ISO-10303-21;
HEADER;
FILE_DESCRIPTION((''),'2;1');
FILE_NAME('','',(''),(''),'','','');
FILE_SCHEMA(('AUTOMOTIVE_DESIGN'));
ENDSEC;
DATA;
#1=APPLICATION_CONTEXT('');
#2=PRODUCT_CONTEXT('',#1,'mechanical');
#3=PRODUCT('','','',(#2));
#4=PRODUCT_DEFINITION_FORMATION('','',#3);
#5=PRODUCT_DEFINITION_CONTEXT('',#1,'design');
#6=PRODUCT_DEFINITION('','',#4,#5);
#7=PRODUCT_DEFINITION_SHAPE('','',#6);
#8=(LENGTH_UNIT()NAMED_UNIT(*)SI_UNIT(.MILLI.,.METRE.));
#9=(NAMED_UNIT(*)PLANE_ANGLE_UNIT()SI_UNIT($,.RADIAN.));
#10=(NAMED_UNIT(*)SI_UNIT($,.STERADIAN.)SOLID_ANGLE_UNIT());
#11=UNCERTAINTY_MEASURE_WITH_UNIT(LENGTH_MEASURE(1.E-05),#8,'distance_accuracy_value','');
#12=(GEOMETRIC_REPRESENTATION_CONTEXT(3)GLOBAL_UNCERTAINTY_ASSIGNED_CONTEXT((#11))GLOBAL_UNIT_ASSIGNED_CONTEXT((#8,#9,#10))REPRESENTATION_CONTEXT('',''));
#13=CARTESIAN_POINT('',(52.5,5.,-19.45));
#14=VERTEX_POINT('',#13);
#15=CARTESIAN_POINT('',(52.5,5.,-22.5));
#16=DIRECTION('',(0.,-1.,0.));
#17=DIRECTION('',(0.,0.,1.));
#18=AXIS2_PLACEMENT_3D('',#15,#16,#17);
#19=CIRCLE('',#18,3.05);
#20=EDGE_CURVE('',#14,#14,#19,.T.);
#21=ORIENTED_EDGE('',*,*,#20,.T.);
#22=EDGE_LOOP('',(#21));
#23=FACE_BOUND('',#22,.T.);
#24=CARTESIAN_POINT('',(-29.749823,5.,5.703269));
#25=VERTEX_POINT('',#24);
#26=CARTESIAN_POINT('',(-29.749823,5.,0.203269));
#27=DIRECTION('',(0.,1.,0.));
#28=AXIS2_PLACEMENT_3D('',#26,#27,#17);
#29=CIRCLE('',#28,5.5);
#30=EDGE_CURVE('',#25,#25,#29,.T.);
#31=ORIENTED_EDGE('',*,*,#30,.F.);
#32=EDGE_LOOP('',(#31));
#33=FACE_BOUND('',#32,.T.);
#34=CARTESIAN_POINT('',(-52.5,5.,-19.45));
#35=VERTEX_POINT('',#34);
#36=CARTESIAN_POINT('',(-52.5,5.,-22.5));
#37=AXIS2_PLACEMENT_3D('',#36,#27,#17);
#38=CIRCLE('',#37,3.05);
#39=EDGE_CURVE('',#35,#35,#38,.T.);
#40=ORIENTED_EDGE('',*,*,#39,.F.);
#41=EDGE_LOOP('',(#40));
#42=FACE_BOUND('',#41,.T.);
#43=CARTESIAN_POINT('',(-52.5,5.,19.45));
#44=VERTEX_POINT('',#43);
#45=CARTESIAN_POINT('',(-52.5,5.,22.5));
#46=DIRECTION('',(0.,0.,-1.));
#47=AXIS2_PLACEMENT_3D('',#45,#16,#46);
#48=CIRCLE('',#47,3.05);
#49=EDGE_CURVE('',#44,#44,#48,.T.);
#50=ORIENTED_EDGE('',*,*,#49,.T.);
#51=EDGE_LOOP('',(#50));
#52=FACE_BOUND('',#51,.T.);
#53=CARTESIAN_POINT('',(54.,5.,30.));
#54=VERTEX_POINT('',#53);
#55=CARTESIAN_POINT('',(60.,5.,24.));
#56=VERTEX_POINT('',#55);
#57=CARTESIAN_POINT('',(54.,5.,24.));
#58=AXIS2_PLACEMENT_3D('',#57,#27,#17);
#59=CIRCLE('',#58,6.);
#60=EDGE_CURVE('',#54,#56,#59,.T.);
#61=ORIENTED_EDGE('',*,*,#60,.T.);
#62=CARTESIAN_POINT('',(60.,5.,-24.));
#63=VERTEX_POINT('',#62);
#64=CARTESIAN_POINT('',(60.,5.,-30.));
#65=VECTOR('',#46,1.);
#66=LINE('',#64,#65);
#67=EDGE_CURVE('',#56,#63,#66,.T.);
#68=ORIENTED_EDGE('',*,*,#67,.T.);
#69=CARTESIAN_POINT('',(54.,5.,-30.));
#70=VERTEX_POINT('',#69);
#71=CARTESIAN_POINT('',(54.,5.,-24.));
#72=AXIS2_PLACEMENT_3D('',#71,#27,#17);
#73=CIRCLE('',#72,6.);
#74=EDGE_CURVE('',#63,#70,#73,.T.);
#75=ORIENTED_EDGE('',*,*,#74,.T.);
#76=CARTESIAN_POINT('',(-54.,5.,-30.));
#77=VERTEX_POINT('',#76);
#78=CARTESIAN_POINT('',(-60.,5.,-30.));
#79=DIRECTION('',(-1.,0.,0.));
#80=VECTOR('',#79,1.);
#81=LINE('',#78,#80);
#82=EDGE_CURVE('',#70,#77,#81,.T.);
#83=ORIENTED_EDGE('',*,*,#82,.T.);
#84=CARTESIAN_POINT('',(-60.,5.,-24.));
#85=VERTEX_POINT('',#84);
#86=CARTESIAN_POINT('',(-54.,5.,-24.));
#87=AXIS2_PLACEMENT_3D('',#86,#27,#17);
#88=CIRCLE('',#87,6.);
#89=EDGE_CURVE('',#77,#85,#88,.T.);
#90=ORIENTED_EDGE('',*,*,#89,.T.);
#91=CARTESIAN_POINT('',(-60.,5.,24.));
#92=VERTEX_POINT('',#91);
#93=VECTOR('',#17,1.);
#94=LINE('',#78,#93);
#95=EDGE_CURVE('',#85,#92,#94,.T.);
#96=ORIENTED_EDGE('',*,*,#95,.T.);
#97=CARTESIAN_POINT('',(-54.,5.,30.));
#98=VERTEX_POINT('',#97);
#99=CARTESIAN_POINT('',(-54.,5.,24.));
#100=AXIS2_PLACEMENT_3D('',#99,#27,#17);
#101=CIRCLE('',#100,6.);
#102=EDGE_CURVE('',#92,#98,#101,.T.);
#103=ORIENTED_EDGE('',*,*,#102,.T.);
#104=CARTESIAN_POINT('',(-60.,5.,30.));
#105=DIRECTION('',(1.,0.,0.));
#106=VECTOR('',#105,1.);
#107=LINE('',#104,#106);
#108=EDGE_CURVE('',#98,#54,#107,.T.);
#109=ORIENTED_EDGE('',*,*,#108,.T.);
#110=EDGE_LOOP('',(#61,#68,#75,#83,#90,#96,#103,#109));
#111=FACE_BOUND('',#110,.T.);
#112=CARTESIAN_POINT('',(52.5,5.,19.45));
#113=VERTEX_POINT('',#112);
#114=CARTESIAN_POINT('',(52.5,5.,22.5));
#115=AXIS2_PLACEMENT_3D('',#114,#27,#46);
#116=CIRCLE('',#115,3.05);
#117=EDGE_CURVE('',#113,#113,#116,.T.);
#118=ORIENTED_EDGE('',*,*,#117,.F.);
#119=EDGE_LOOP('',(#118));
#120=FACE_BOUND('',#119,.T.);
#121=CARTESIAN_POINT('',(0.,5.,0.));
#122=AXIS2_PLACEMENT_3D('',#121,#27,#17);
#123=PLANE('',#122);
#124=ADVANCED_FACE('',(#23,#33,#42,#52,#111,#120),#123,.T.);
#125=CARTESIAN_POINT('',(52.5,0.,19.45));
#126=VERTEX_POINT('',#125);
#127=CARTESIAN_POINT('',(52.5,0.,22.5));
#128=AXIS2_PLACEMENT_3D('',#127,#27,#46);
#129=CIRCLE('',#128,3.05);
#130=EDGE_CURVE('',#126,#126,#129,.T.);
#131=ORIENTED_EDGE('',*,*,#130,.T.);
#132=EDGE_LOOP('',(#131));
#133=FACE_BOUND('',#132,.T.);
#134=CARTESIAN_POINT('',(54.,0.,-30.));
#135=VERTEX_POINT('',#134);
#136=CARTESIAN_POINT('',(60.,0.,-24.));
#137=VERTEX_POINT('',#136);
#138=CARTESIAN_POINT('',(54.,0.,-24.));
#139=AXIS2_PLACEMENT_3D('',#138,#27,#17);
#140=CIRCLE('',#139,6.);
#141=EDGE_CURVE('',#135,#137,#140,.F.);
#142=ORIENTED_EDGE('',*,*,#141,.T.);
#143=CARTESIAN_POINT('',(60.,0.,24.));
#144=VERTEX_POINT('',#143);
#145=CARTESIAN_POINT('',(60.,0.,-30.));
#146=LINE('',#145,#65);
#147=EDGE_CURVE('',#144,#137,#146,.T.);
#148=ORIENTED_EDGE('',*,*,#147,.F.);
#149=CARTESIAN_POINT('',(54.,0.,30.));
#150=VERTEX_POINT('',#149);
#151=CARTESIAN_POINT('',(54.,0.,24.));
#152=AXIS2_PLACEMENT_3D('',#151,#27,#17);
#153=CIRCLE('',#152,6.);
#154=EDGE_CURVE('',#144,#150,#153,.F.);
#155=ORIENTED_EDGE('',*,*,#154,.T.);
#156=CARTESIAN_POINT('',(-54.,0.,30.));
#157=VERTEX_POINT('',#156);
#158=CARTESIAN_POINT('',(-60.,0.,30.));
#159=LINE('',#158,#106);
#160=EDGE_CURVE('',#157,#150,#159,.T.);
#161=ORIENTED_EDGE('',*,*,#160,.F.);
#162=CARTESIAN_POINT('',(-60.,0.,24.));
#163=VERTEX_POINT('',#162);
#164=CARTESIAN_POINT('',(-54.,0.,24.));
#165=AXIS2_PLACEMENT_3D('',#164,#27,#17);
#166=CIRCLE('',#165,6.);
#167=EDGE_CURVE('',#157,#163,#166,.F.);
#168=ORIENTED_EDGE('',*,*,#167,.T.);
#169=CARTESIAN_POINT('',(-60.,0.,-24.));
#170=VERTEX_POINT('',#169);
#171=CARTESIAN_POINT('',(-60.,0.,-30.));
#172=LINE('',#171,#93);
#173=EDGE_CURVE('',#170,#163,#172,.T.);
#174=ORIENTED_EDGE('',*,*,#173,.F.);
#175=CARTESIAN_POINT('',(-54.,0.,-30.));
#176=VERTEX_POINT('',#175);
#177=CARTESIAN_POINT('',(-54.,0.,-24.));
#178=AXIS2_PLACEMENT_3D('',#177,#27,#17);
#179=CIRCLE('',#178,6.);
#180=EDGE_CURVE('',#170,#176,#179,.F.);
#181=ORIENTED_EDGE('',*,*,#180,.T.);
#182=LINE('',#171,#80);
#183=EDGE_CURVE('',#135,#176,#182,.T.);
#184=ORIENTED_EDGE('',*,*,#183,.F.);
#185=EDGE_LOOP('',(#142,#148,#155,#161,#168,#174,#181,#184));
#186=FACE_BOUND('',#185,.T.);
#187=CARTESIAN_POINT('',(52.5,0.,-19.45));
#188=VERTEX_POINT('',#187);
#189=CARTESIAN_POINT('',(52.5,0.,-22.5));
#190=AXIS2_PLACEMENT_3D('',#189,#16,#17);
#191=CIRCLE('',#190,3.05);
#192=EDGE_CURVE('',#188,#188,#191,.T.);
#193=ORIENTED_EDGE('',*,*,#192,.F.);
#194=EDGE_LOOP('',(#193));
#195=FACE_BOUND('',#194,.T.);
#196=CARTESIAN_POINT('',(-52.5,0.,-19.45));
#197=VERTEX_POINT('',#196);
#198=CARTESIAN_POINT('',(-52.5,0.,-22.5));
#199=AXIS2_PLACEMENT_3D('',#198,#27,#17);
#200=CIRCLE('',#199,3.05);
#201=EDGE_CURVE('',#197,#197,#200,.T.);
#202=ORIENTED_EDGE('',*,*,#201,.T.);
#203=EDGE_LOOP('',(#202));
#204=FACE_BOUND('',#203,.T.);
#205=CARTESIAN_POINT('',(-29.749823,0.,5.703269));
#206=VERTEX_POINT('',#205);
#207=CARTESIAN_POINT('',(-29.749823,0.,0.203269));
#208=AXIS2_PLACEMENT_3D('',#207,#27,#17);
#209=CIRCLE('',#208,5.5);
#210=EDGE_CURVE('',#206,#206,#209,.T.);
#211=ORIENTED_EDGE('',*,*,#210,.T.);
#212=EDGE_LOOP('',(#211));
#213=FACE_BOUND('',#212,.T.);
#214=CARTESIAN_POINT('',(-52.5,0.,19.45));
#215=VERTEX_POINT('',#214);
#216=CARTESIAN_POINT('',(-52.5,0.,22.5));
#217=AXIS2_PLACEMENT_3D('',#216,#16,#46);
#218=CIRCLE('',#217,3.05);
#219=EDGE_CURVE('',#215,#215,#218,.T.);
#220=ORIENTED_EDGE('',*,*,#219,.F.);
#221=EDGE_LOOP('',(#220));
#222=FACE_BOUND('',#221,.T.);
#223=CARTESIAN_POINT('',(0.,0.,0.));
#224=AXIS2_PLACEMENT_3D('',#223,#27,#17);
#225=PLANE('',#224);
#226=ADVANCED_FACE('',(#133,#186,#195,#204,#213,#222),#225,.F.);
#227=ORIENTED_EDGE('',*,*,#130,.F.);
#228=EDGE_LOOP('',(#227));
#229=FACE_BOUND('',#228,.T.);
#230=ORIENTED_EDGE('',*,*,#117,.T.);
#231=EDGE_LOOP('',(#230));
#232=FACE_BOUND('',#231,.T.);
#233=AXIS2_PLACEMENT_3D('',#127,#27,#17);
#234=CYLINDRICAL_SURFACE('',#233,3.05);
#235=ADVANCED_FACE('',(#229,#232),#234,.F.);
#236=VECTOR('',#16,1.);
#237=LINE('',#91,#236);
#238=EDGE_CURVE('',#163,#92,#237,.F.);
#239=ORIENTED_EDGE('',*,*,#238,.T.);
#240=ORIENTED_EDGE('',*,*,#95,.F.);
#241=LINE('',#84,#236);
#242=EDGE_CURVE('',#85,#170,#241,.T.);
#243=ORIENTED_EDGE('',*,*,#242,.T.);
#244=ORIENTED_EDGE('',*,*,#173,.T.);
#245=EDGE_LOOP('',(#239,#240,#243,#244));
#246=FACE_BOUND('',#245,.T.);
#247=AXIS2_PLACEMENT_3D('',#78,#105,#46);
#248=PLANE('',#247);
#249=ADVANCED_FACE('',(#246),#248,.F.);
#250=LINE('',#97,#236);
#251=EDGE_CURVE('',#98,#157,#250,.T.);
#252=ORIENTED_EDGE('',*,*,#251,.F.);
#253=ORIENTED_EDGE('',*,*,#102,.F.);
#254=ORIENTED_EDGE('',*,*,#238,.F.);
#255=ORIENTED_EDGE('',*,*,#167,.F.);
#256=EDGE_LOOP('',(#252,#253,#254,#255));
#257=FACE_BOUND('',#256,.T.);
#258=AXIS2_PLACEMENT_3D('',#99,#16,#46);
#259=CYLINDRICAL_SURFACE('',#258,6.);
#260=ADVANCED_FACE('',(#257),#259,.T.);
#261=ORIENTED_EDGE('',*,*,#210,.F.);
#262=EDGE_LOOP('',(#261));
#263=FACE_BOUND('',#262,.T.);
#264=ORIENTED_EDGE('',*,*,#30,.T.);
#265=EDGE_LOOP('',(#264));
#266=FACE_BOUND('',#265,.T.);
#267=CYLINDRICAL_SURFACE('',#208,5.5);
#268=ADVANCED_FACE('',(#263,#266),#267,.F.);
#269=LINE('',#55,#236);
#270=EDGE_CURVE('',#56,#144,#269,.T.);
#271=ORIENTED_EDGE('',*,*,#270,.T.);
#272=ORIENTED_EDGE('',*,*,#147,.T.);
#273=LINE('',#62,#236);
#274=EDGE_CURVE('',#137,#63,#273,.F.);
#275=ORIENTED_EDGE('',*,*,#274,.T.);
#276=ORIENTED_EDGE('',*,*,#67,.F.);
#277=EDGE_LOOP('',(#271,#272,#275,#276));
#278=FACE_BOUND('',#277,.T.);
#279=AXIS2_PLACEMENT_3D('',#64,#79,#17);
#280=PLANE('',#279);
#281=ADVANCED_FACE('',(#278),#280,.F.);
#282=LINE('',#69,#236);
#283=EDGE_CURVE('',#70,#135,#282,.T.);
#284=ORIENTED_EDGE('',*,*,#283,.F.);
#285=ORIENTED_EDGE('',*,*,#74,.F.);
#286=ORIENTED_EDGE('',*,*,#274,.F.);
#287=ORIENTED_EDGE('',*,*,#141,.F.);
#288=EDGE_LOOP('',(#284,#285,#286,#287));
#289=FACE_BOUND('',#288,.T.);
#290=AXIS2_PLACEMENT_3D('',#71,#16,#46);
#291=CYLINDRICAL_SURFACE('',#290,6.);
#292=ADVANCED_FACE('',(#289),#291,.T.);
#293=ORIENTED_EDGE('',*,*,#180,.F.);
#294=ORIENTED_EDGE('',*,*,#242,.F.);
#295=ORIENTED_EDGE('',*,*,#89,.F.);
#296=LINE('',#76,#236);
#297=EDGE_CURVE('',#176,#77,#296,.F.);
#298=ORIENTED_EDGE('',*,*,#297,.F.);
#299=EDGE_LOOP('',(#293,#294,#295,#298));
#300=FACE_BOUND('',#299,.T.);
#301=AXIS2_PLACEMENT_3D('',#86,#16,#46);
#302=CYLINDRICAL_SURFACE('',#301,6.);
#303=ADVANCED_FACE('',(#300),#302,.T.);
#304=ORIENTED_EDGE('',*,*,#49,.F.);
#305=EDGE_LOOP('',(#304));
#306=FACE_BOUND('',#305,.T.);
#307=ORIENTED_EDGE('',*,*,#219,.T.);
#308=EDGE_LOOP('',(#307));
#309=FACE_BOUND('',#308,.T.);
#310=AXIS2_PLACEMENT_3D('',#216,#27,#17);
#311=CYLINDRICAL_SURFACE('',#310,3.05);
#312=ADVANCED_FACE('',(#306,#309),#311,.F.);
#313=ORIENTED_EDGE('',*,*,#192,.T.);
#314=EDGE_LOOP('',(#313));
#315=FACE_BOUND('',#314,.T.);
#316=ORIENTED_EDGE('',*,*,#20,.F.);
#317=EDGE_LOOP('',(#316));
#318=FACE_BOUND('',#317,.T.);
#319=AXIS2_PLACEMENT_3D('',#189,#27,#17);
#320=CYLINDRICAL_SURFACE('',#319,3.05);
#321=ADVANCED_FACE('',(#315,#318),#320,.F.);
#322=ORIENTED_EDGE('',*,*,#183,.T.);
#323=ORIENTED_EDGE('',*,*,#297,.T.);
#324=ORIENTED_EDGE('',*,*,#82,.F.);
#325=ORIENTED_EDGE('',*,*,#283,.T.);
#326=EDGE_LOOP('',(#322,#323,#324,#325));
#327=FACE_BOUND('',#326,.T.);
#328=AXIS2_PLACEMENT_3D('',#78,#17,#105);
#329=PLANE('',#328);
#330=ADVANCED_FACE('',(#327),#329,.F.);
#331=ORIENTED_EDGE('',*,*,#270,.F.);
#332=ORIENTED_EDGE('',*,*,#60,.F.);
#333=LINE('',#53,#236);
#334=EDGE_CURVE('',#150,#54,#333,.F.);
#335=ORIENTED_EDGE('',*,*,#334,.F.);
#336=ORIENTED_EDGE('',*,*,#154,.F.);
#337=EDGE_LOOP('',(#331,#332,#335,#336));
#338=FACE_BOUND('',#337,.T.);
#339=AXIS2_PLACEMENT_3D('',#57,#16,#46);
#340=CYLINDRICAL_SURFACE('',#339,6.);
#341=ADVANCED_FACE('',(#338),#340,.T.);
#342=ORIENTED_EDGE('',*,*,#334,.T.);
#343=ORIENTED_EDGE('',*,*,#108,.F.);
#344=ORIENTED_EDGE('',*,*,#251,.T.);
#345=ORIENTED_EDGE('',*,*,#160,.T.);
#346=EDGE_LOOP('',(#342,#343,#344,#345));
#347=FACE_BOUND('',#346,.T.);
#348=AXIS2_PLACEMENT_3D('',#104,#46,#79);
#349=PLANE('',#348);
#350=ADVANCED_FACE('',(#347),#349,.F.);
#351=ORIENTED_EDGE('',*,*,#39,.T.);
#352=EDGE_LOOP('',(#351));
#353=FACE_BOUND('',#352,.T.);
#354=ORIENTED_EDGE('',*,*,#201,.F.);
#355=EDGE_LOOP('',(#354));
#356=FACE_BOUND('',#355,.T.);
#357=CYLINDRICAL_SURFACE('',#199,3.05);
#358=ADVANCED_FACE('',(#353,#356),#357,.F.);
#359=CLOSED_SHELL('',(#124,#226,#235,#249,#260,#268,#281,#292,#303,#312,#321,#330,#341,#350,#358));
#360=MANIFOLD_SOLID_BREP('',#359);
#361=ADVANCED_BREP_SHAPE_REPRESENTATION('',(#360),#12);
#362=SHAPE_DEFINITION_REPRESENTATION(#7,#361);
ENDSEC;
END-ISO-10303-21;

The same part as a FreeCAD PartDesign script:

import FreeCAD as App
import Part
import Sketcher


def edges_at(feature, points):
    """Names of the edges that pass closest to the given points."""
    edges = feature.Shape.Edges
    near = lambda p: min(range(len(edges)), key=lambda i: edges[i].distToShape(Part.Vertex(*p))[0])
    return sorted({f"Edge{near(p) + 1}" for p in points})


def add_polygon(sketch, points):
    """Adds a closed chain of lines whose ends are joined by coincident constraints."""
    first, n = sketch.GeometryCount, len(points)
    for a, b in zip(points, points[1:] + points[:1]):
        sketch.addGeometry(Part.LineSegment(App.Vector(*a, 0), App.Vector(*b, 0)), False)
    for i in range(n):
        sketch.addConstraint(Sketcher.Constraint("Coincident", first + i, 2, first + (i + 1) % n, 1))

doc = App.newDocument("Part")
body = doc.addObject("PartDesign::Body", "Body")

# Sketch on XZ plane
sketch1 = body.newObject("Sketcher::SketchObject", "Sketch")
sketch1.AttachmentSupport = (doc.getObject("XZ_Plane"), [""])
sketch1.MapMode = "FlatFace"
add_polygon(sketch1, [(-60, -30), (-60, 30), (60, 30), (60, -30)])  # lines 0-3
sketch1.addConstraint([
    Sketcher.Constraint("Vertical", 0),
    Sketcher.Constraint("Horizontal", 1),
    Sketcher.Constraint("Vertical", 2),
    Sketcher.Constraint("Horizontal", 3),
    Sketcher.Constraint("Symmetric", 0, 2, 2, 2, -1, 1),
    Sketcher.Constraint("DistanceX", 1, 1, 1, 2, 120.0),
    Sketcher.Constraint("DistanceY", 0, 1, 0, 2, 60.0),
])
pad1 = body.newObject("PartDesign::Pad", "Pad")
pad1.Profile = sketch1
pad1.Length = 5
pad1.Reversed = True

# Sketch on XZ plane
sketch2 = body.newObject("Sketcher::SketchObject", "Sketch001")
sketch2.AttachmentSupport = (doc.getObject("XZ_Plane"), [""])
sketch2.MapMode = "FlatFace"
sketch2.AttachmentOffset = App.Placement(App.Vector(0, 0, -5), App.Rotation())
sketch2.addGeometry(Part.Circle(App.Vector(-52.5, -22.5, 0), App.Vector(0, 0, 1), 3), False)
sketch2.addConstraint([
    Sketcher.Constraint("Diameter", 0, 6.1),
    Sketcher.Constraint("DistanceX", 0, 3, -1, 1, 52.5),
    Sketcher.Constraint("DistanceY", 0, 3, -1, 1, 22.5),
])
pocket1 = body.newObject("PartDesign::Pocket", "Pocket")
pocket1.Profile = sketch2
pocket1.Type = "ThroughAll"
pocket1.Reversed = True
doc.recompute()

mirrored = body.newObject("PartDesign::Mirrored", "Mirrored")
mirrored.Originals = [pocket1]
mirrored.MirrorPlane = (doc.getObject("XY_Plane"), [""])
body.Tip = mirrored
doc.recompute()

mirrored2 = body.newObject("PartDesign::Mirrored", "Mirrored001")
mirrored2.Originals = [pocket1]
mirrored2.MirrorPlane = (doc.getObject("YZ_Plane"), [""])
body.Tip = mirrored2

# Sketch on XZ plane
sketch3 = body.newObject("Sketcher::SketchObject", "Sketch002")
sketch3.AttachmentSupport = (doc.getObject("XZ_Plane"), [""])
sketch3.MapMode = "FlatFace"
sketch3.AttachmentOffset = App.Placement(App.Vector(0, 0, -5), App.Rotation())
sketch3.addGeometry(Part.Circle(App.Vector(52.5, 22.5, 0), App.Vector(0, 0, 1), 3), False)
sketch3.addConstraint([
    Sketcher.Constraint("Diameter", 0, 6.1),
    Sketcher.Constraint("DistanceX", -1, 1, 0, 3, 52.5),
    Sketcher.Constraint("DistanceY", -1, 1, 0, 3, 22.5),
])
pocket2 = body.newObject("PartDesign::Pocket", "Pocket001")
pocket2.Profile = sketch3
pocket2.Type = "ThroughAll"
pocket2.Reversed = True

# Sketch on XZ plane
sketch4 = body.newObject("Sketcher::SketchObject", "Sketch003")
sketch4.AttachmentSupport = (doc.getObject("XZ_Plane"), [""])
sketch4.MapMode = "FlatFace"
sketch4.AttachmentOffset = App.Placement(App.Vector(0, 0, -5), App.Rotation())
sketch4.addGeometry(Part.Circle(App.Vector(-30, 0, 0), App.Vector(0, 0, 1), 6), False)
sketch4.addConstraint([
    Sketcher.Constraint("Diameter", 0, 11.0),
    Sketcher.Constraint("DistanceY", -1, 1, 0, 3, 0.203269),
    Sketcher.Constraint("DistanceX", 0, 3, -1, 1, 29.749823),
])
pocket3 = body.newObject("PartDesign::Pocket", "Pocket002")
pocket3.Profile = sketch4
pocket3.Type = "ThroughAll"
pocket3.Reversed = True
doc.recompute()

fillet = body.newObject("PartDesign::Fillet", "Fillet")
fillet.Base = (pocket3, edges_at(pocket3, [
    (60, 2.5, 30),
    (-60, 2.5, 30),
    (-60, 2.5, -30),
    (60, 2.5, -30),
]))
fillet.Radius = 6

doc.recompute()
